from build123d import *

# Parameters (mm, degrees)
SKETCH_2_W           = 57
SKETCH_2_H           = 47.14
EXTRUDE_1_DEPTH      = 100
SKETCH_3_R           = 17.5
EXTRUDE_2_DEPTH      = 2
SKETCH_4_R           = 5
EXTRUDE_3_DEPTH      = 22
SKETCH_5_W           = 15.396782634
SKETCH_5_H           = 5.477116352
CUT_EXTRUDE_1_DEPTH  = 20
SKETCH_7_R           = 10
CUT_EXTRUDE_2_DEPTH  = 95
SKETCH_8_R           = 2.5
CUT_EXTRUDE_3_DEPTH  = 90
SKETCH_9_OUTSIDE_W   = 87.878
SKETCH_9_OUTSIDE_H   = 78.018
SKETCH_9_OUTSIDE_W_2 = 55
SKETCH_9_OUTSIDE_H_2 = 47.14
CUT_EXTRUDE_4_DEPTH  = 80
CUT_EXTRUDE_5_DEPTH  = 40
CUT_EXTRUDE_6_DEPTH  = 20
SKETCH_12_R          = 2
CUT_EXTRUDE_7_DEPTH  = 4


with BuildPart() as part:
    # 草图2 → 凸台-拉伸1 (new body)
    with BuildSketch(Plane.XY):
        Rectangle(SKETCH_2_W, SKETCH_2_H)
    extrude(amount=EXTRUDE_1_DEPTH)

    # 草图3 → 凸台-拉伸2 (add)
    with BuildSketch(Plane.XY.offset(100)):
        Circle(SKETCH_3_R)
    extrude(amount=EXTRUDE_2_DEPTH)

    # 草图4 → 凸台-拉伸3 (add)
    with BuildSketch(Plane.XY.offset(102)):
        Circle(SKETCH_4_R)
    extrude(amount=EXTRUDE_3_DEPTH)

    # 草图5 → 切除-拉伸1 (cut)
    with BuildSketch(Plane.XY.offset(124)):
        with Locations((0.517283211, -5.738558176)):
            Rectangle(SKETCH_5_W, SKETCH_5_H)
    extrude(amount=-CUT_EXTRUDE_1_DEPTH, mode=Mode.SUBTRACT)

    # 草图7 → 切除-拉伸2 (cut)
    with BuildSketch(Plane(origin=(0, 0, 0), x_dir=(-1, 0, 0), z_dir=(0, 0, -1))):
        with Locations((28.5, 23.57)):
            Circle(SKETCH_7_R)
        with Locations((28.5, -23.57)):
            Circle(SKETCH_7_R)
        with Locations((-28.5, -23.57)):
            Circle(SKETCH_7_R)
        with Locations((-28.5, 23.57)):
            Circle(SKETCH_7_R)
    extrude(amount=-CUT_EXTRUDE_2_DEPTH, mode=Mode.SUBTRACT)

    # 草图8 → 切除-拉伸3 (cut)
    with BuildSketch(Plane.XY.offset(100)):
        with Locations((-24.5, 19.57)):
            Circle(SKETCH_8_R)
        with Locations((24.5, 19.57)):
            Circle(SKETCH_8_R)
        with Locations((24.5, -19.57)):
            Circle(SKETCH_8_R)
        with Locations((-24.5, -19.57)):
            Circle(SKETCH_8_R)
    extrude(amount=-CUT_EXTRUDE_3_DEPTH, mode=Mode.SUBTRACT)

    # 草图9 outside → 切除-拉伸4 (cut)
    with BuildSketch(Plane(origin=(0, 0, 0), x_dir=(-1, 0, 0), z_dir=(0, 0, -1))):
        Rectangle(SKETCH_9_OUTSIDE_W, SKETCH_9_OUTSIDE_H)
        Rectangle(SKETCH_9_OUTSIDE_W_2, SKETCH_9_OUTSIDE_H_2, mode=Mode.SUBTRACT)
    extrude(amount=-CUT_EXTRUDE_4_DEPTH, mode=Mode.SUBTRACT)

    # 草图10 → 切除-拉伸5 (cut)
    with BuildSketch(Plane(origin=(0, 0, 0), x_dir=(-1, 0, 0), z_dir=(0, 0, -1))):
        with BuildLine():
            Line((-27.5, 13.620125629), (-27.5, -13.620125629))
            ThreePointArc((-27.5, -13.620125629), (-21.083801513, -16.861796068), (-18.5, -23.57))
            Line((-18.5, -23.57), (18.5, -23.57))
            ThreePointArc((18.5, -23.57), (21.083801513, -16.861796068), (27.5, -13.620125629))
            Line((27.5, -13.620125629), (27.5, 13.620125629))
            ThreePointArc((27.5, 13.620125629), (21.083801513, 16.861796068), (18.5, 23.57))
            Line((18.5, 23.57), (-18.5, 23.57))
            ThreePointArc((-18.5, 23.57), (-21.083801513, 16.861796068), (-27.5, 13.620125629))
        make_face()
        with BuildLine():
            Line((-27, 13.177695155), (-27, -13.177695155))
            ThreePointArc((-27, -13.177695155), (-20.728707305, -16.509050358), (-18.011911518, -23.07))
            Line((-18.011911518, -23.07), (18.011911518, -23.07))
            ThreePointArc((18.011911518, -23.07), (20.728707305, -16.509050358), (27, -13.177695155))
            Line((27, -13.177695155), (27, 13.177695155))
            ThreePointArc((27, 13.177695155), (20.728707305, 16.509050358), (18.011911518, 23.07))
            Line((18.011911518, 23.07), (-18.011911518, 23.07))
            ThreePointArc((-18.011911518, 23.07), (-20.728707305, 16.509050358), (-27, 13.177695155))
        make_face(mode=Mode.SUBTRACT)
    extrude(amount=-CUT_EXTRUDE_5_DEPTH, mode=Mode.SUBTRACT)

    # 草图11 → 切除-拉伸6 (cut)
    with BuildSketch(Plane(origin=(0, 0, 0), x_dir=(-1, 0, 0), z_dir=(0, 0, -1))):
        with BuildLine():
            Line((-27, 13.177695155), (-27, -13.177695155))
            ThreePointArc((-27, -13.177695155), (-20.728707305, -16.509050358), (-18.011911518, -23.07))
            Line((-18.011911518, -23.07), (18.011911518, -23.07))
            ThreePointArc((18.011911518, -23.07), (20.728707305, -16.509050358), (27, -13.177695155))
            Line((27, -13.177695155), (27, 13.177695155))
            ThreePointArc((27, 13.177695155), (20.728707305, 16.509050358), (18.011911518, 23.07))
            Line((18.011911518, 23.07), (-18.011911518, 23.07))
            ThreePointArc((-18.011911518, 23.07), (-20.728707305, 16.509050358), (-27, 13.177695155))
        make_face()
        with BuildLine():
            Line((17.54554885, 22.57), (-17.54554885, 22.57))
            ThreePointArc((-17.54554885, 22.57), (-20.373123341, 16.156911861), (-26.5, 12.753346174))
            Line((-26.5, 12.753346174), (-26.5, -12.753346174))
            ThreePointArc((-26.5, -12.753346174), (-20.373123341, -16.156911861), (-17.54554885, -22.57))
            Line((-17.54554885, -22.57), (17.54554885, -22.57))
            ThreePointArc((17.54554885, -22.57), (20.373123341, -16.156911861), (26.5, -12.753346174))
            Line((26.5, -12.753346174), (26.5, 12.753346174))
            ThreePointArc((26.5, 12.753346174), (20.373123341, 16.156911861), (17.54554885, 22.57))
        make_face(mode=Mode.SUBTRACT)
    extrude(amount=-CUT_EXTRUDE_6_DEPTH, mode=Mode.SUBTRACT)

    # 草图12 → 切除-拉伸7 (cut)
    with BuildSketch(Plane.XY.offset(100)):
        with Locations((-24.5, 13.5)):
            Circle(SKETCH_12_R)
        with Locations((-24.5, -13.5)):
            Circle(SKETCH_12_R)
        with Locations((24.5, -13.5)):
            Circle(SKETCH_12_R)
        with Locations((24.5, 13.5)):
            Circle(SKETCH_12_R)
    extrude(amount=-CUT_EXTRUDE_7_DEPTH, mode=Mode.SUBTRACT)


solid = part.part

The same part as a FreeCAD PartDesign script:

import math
import FreeCAD as App
import Part
import Sketcher

V = App.Vector


def add_polygon(sketch, points):
    """Adds a closed chain of lines whose ends are joined by coincident constraints."""
    first, n = sketch.GeometryCount, len(points)
    for a, b in zip(points, points[1:] + points[:1]):
        sketch.addGeometry(Part.LineSegment(App.Vector(*a, 0), App.Vector(*b, 0)), False)
    for i in range(n):
        sketch.addConstraint(Sketcher.Constraint("Coincident", first + i, 2, first + (i + 1) % n, 1))

doc = App.newDocument("Part")
body = doc.addObject("PartDesign::Body", "Body")

# Sketch on XY plane
sketch1 = body.newObject("Sketcher::SketchObject", "Sketch")
sketch1.AttachmentSupport = (doc.getObject("XY_Plane"), [""])
sketch1.MapMode = "FlatFace"
add_polygon(sketch1, [(-28.5, 23.57), (-28.5, -23.57), (28.5, -23.57), (28.5, 23.57)])  # lines 0-3
sketch1.addConstraint(Sketcher.Constraint("Vertical", 0))
sketch1.addConstraint(Sketcher.Constraint("Horizontal", 1))
sketch1.addConstraint(Sketcher.Constraint("Vertical", 2))
sketch1.addConstraint(Sketcher.Constraint("Horizontal", 3))
sketch1.addConstraint(Sketcher.Constraint("Symmetric", 0, 2, 2, 2, -1, 1))
sketch1.addConstraint(Sketcher.Constraint("DistanceX", 1, 1, 1, 2, 57.0))
sketch1.addConstraint(Sketcher.Constraint("DistanceY", 0, 2, 0, 1, 47.14))
pad1 = body.newObject("PartDesign::Pad", "Pad")
pad1.Profile = sketch1
pad1.Length = 100

# Sketch on XY plane
sketch2 = body.newObject("Sketcher::SketchObject", "Sketch001")
sketch2.AttachmentSupport = (doc.getObject("XY_Plane"), [""])
sketch2.MapMode = "FlatFace"
sketch2.AttachmentOffset = App.Placement(V(0, 0, 100), App.Rotation())
sketch2.addGeometry(Part.Circle(V(0, 0, 0), V(0, 0, 1), 17.5), False)
sketch2.addConstraint(Sketcher.Constraint("Coincident", 0, 3, -1, 1))
sketch2.addConstraint(Sketcher.Constraint("Diameter", 0, 35.0))
pad2 = body.newObject("PartDesign::Pad", "Pad001")
pad2.Profile = sketch2
pad2.Length = 2

# Sketch on XY plane
sketch3 = body.newObject("Sketcher::SketchObject", "Sketch002")
sketch3.AttachmentSupport = (doc.getObject("XY_Plane"), [""])
sketch3.MapMode = "FlatFace"
sketch3.AttachmentOffset = App.Placement(V(0, 0, 102), App.Rotation())
sketch3.addGeometry(Part.Circle(V(0, 0, 0), V(0, 0, 1), 5), False)
sketch3.addConstraint(Sketcher.Constraint("Coincident", 0, 3, -1, 1))
sketch3.addConstraint(Sketcher.Constraint("Diameter", 0, 10.0))
pad3 = body.newObject("PartDesign::Pad", "Pad002")
pad3.Profile = sketch3
pad3.Length = 22

# Sketch on XY plane
sketch4 = body.newObject("Sketcher::SketchObject", "Sketch003")
sketch4.AttachmentSupport = (doc.getObject("XY_Plane"), [""])
sketch4.MapMode = "FlatFace"
sketch4.AttachmentOffset = App.Placement(V(0, 0, 124), App.Rotation())
add_polygon(sketch4, [(-7.181108, -3), (-7.181108, -8.477116), (8.215675, -8.477116), (8.215675, -3)])  # lines 0-3
sketch4.addConstraint(Sketcher.Constraint("Vertical", 0))
sketch4.addConstraint(Sketcher.Constraint("Horizontal", 1))
sketch4.addConstraint(Sketcher.Constraint("Vertical", 2))
sketch4.addConstraint(Sketcher.Constraint("Horizontal", 3))
sketch4.addConstraint(Sketcher.Constraint("DistanceY", 2, 2, -1, 1, 3.0))
sketch4.addConstraint(Sketcher.Constraint("DistanceX", 1, 1, 1, 2, 15.396783))
sketch4.addConstraint(Sketcher.Constraint("DistanceY", 0, 2, 0, 1, 5.477116))
sketch4.addConstraint(Sketcher.Constraint("DistanceX", 0, 2, -1, 1, 7.181108))
pocket1 = body.newObject("PartDesign::Pocket", "Pocket")
pocket1.Profile = sketch4
pocket1.Length = 20

# Sketch on XY plane
sketch5 = body.newObject("Sketcher::SketchObject", "Sketch004")
sketch5.AttachmentSupport = (doc.getObject("XY_Plane"), [""])
sketch5.MapMode = "FlatFace"
sketch5.addGeometry(Part.Circle(V(-28.5, 23.57, 0), V(0, 0, 1), 10), False)
sketch5.addGeometry(Part.Circle(V(-28.5, -23.57, 0), V(0, 0, 1), 10), False)
sketch5.addGeometry(Part.Circle(V(28.5, -23.57, 0), V(0, 0, 1), 10), False)
sketch5.addGeometry(Part.Circle(V(28.5, 23.57, 0), V(0, 0, 1), 10), False)
sketch5.addConstraint(Sketcher.Constraint("Equal", 0, 1))
sketch5.addConstraint(Sketcher.Constraint("Equal", 1, 2))
sketch5.addConstraint(Sketcher.Constraint("Equal", 2, 3))
sketch5.addConstraint(Sketcher.Constraint("Symmetric", 0, 3, 2, 3, -1, 1))
sketch5.addConstraint(Sketcher.Constraint("Symmetric", 1, 3, 3, 3, -1, 1))
sketch5.addConstraint(Sketcher.Constraint("Symmetric", 1, 3, 2, 3, -2))
sketch5.addConstraint(Sketcher.Constraint("Diameter", 0, 20.0))
sketch5.addConstraint(Sketcher.Constraint("DistanceX", 1, 3, 2, 3, 57.0))
sketch5.addConstraint(Sketcher.Constraint("DistanceY", -1, 1, 0, 3, 23.57))
pocket2 = body.newObject("PartDesign::Pocket", "Pocket001")
pocket2.Profile = sketch5
pocket2.Length = 95
pocket2.Reversed = True

# Sketch on XY plane
sketch6 = body.newObject("Sketcher::SketchObject", "Sketch005")
sketch6.AttachmentSupport = (doc.getObject("XY_Plane"), [""])
sketch6.MapMode = "FlatFace"
sketch6.AttachmentOffset = App.Placement(V(0, 0, 100), App.Rotation())
sketch6.addGeometry(Part.Circle(V(-24.5, 19.57, 0), V(0, 0, 1), 2.5), False)
sketch6.addGeometry(Part.Circle(V(24.5, 19.57, 0), V(0, 0, 1), 2.5), False)
sketch6.addGeometry(Part.Circle(V(24.5, -19.57, 0), V(0, 0, 1), 2.5), False)
sketch6.addGeometry(Part.Circle(V(-24.5, -19.57, 0), V(0, 0, 1), 2.5), False)
sketch6.addConstraint(Sketcher.Constraint("Equal", 0, 1))
sketch6.addConstraint(Sketcher.Constraint("Equal", 1, 2))
sketch6.addConstraint(Sketcher.Constraint("Equal", 2, 3))
sketch6.addConstraint(Sketcher.Constraint("Symmetric", 0, 3, 2, 3, -1, 1))
sketch6.addConstraint(Sketcher.Constraint("Symmetric", 1, 3, 3, 3, -1, 1))
sketch6.addConstraint(Sketcher.Constraint("Symmetric", 0, 3, 1, 3, -2))
sketch6.addConstraint(Sketcher.Constraint("Diameter", 0, 5.0))
sketch6.addConstraint(Sketcher.Constraint("DistanceX", 0, 3, 1, 3, 49.0))
sketch6.addConstraint(Sketcher.Constraint("DistanceY", -1, 1, 0, 3, 19.57))
pocket3 = body.newObject("PartDesign::Pocket", "Pocket002")
pocket3.Profile = sketch6
pocket3.Length = 90

# Sketch on XY plane
sketch7 = body.newObject("Sketcher::SketchObject", "Sketch006")
sketch7.AttachmentSupport = (doc.getObject("XY_Plane"), [""])
sketch7.MapMode = "FlatFace"
add_polygon(sketch7, [(43.939, 39.009), (43.939, -39.009), (-43.939, -39.009), (-43.939, 39.009)])  # lines 0-3
add_polygon(sketch7, [(-27.5, -23.57), (27.5, -23.57), (27.5, 23.57), (-27.5, 23.57)])  # lines 4-7
sketch7.addConstraint(Sketcher.Constraint("Vertical", 0))
sketch7.addConstraint(Sketcher.Constraint("Horizontal", 1))
sketch7.addConstraint(Sketcher.Constraint("Vertical", 2))
sketch7.addConstraint(Sketcher.Constraint("Horizontal", 3))
sketch7.addConstraint(Sketcher.Constraint("Horizontal", 4))
sketch7.addConstraint(Sketcher.Constraint("Vertical", 5))
sketch7.addConstraint(Sketcher.Constraint("Horizontal", 6))
sketch7.addConstraint(Sketcher.Constraint("Vertical", 7))
sketch7.addConstraint(Sketcher.Constraint("Symmetric", 0, 2, 2, 2, -1, 1))
sketch7.addConstraint(Sketcher.Constraint("Symmetric", 4, 2, 6, 2, -1, 1))
sketch7.addConstraint(Sketcher.Constraint("DistanceX", 4, 1, 4, 2, 55.0))
sketch7.addConstraint(Sketcher.Constraint("DistanceY", 5, 1, 5, 2, 47.14))
sketch7.addConstraint(Sketcher.Constraint("DistanceX", 1, 2, 1, 1, 87.878))
sketch7.addConstraint(Sketcher.Constraint("DistanceY", 0, 2, 0, 1, 78.018))
pocket4 = body.newObject("PartDesign::Pocket", "Pocket003")
pocket4.Profile = sketch7
pocket4.Length = 80
pocket4.Reversed = True

# Sketch on XY plane
sketch8 = body.newObject("Sketcher::SketchObject", "Sketch007")
sketch8.AttachmentSupport = (doc.getObject("XY_Plane"), [""])
sketch8.MapMode = "FlatFace"
sketch8.addGeometry(Part.LineSegment(V(27.5, 13.620126, 0), V(27.5, -13.620126, 0)), False)
sketch8.addGeometry(Part.ArcOfCircle(Part.Circle(V(28.5, -23.57, 0), V(0, 0, 1), 10), math.radians(95.73917), math.radians(180)), False)
sketch8.addGeometry(Part.LineSegment(V(18.5, -23.57, 0), V(-18.5, -23.57, 0)), False)
sketch8.addGeometry(Part.ArcOfCircle(Part.Circle(V(-28.5, -23.57, 0), V(0, 0, 1), 10), math.radians(0), math.radians(84.26083)), False)
sketch8.addGeometry(Part.LineSegment(V(-27.5, -13.620126, 0), V(-27.5, 13.620126, 0)), False)
sketch8.addGeometry(Part.ArcOfCircle(Part.Circle(V(-28.5, 23.57, 0), V(0, 0, 1), 10), math.radians(-84.26083), math.radians(0)), False)
sketch8.addGeometry(Part.LineSegment(V(-18.5, 23.57, 0), V(18.5, 23.57, 0)), False)
sketch8.addGeometry(Part.ArcOfCircle(Part.Circle(V(28.5, 23.57, 0), V(0, 0, 1), 10), math.radians(-180), math.radians(-95.73917)), False)
sketch8.addGeometry(Part.LineSegment(V(27, -13.177695, 0), V(27, 13.177695, 0)), False)
sketch8.addGeometry(Part.ArcOfCircle(Part.Circle(V(28.5, 23.57, 0), V(0, 0, 1), 10.5), math.radians(-177.270597), math.radians(-98.213211)), False)
sketch8.addGeometry(Part.LineSegment(V(18.011912, 23.07, 0), V(-18.011912, 23.07, 0)), False)
sketch8.addGeometry(Part.ArcOfCircle(Part.Circle(V(-28.5, 23.57, 0), V(0, 0, 1), 10.5), math.radians(-81.786789), math.radians(-2.729403)), False)
sketch8.addGeometry(Part.LineSegment(V(-27, 13.177695, 0), V(-27, -13.177695, 0)), False)
sketch8.addGeometry(Part.ArcOfCircle(Part.Circle(V(-28.5, -23.57, 0), V(0, 0, 1), 10.5), math.radians(2.729403), math.radians(81.786789)), False)
sketch8.addGeometry(Part.LineSegment(V(-18.011912, -23.07, 0), V(18.011912, -23.07, 0)), False)
sketch8.addGeometry(Part.ArcOfCircle(Part.Circle(V(28.5, -23.57, 0), V(0, 0, 1), 10.5), math.radians(98.213211), math.radians(177.270597)), False)
sketch8.addConstraint(Sketcher.Constraint("Coincident", 0, 2, 1, 1))
sketch8.addConstraint(Sketcher.Constraint("Coincident", 1, 2, 2, 1))
sketch8.addConstraint(Sketcher.Constraint("Coincident", 2, 2, 3, 1))
sketch8.addConstraint(Sketcher.Constraint("Coincident", 3, 2, 4, 1))
sketch8.addConstraint(Sketcher.Constraint("Coincident", 4, 2, 5, 1))
sketch8.addConstraint(Sketcher.Constraint("Coincident", 5, 2, 6, 1))
sketch8.addConstraint(Sketcher.Constraint("Coincident", 6, 2, 7, 1))
sketch8.addConstraint(Sketcher.Constraint("Coincident", 7, 2, 0, 1))
sketch8.addConstraint(Sketcher.Constraint("Coincident", 8, 2, 9, 2))
sketch8.addConstraint(Sketcher.Constraint("Coincident", 9, 1, 10, 1))
sketch8.addConstraint(Sketcher.Constraint("Coincident", 10, 2, 11, 2))
sketch8.addConstraint(Sketcher.Constraint("Coincident", 11, 1, 12, 1))
sketch8.addConstraint(Sketcher.Constraint("Coincident", 12, 2, 13, 2))
sketch8.addConstraint(Sketcher.Constraint("Coincident", 13, 1, 14, 1))
sketch8.addConstraint(Sketcher.Constraint("Coincident", 14, 2, 15, 2))
sketch8.addConstraint(Sketcher.Constraint("Coincident", 15, 1, 8, 1))
sketch8.addConstraint(Sketcher.Constraint("Vertical", 0))
sketch8.addConstraint(Sketcher.Constraint("Horizontal", 2))
sketch8.addConstraint(Sketcher.Constraint("Vertical", 4))
sketch8.addConstraint(Sketcher.Constraint("Horizontal", 6))
sketch8.addConstraint(Sketcher.Constraint("Vertical", 8))
sketch8.addConstraint(Sketcher.Constraint("Horizontal", 10))
sketch8.addConstraint(Sketcher.Constraint("Vertical", 12))
sketch8.addConstraint(Sketcher.Constraint("Horizontal", 14))
sketch8.addConstraint(Sketcher.Constraint("Coincident", 9, 3, 7, 3))
sketch8.addConstraint(Sketcher.Constraint("Coincident", 11, 3, 5, 3))
sketch8.addConstraint(Sketcher.Constraint("Coincident", 13, 3, 3, 3))
sketch8.addConstraint(Sketcher.Constraint("Coincident", 15, 3, 1, 3))
sketch8.addConstraint(Sketcher.Constraint("Equal", 1, 3))
sketch8.addConstraint(Sketcher.Constraint("Equal", 3, 5))
sketch8.addConstraint(Sketcher.Constraint("Equal", 5, 7))
sketch8.addConstraint(Sketcher.Constraint("Equal", 9, 11))
sketch8.addConstraint(Sketcher.Constraint("Equal", 11, 13))
sketch8.addConstraint(Sketcher.Constraint("Equal", 13, 15))
sketch8.addConstraint(Sketcher.Constraint("Symmetric", 1, 3, 5, 3, -1, 1))
sketch8.addConstraint(Sketcher.Constraint("Symmetric", 3, 3, 7, 3, -1, 1))
sketch8.addConstraint(Sketcher.Constraint("Symmetric", 1, 3, 3, 3, -2))
sketch8.addConstraint(Sketcher.Constraint("Horizontal", 15, 3, 1, 2))
sketch8.addConstraint(Sketcher.Constraint("Horizontal", 0, 2, 3, 2))
sketch8.addConstraint(Sketcher.Constraint("Horizontal", 11, 3, 5, 2))
sketch8.addConstraint(Sketcher.Constraint("Horizontal", 8, 2, 11, 1))
sketch8.addConstraint(Sketcher.Constraint("Vertical", 10, 2, 13, 1))
sketch8.addConstraint(Sketcher.Constraint("Radius", 1, 10.0))
sketch8.addConstraint(Sketcher.Constraint("Radius", 9, 10.5))
sketch8.addConstraint(Sketcher.Constraint("DistanceX", 2, 2, 2, 1, 37.0))
sketch8.addConstraint(Sketcher.Constraint("DistanceX", -1, 1, 8, 2, 27.0))
sketch8.addConstraint(Sketcher.Constraint("DistanceX", 0, 2, 15, 3, 1.0))
sketch8.addConstraint(Sketcher.Constraint("DistanceY", 9, 1, 6, 2, 0.5))
sketch8.addConstraint(Sketcher.Constraint("DistanceY", 1, 3, -1, 1, 23.57))
pocket5 = body.newObject("PartDesign::Pocket", "Pocket004")
pocket5.Profile = sketch8
pocket5.Length = 40
pocket5.Reversed = True

# Sketch on XY plane
sketch9 = body.newObject("Sketcher::SketchObject", "Sketch008")
sketch9.AttachmentSupport = (doc.getObject("XY_Plane"), [""])
sketch9.MapMode = "FlatFace"
sketch9.addGeometry(Part.LineSegment(V(27, 13.177695, 0), V(27, -13.177695, 0)), False)
sketch9.addGeometry(Part.ArcOfCircle(Part.Circle(V(28.5, -23.57, 0), V(0, 0, 1), 10.5), math.radians(98.213211), math.radians(177.270597)), False)
sketch9.addGeometry(Part.LineSegment(V(18.011912, -23.07, 0), V(-18.011912, -23.07, 0)), False)
sketch9.addGeometry(Part.ArcOfCircle(Part.Circle(V(-28.5, -23.57, 0), V(0, 0, 1), 10.5), math.radians(2.729403), math.radians(81.786789)), False)
sketch9.addGeometry(Part.LineSegment(V(-27, -13.177695, 0), V(-27, 13.177695, 0)), False)
sketch9.addGeometry(Part.ArcOfCircle(Part.Circle(V(-28.5, 23.57, 0), V(0, 0, 1), 10.5), math.radians(-81.786789), math.radians(-2.729403)), False)
sketch9.addGeometry(Part.LineSegment(V(-18.011912, 23.07, 0), V(18.011912, 23.07, 0)), False)
sketch9.addGeometry(Part.ArcOfCircle(Part.Circle(V(28.5, 23.57, 0), V(0, 0, 1), 10.5), math.radians(-177.270597), math.radians(-98.213211)), False)
sketch9.addGeometry(Part.LineSegment(V(17.545549, 22.57, 0), V(-17.545549, 22.57, 0)), False)
sketch9.addGeometry(Part.ArcOfCircle(Part.Circle(V(-28.5, 23.57, 0), V(0, 0, 1), 11), math.radians(-79.524318), math.radians(-5.215909)), False)
sketch9.addGeometry(Part.LineSegment(V(-26.5, 12.753346, 0), V(-26.5, -12.753346, 0)), False)
sketch9.addGeometry(Part.ArcOfCircle(Part.Circle(V(-28.5, -23.57, 0), V(0, 0, 1), 11), math.radians(5.215909), math.radians(79.524318)), False)
sketch9.addGeometry(Part.LineSegment(V(-17.545549, -22.57, 0), V(17.545549, -22.57, 0)), False)
sketch9.addGeometry(Part.ArcOfCircle(Part.Circle(V(28.5, -23.57, 0), V(0, 0, 1), 11), math.radians(100.475682), math.radians(174.784091)), False)
sketch9.addGeometry(Part.LineSegment(V(26.5, -12.753346, 0), V(26.5, 12.753346, 0)), False)
sketch9.addGeometry(Part.ArcOfCircle(Part.Circle(V(28.5, 23.57, 0), V(0, 0, 1), 11), math.radians(-174.784091), math.radians(-100.475682)), False)
sketch9.addConstraint(Sketcher.Constraint("Coincident", 0, 2, 1, 1))
sketch9.addConstraint(Sketcher.Constraint("Coincident", 1, 2, 2, 1))
sketch9.addConstraint(Sketcher.Constraint("Coincident", 2, 2, 3, 1))
sketch9.addConstraint(Sketcher.Constraint("Coincident", 3, 2, 4, 1))
sketch9.addConstraint(Sketcher.Constraint("Coincident", 4, 2, 5, 1))
sketch9.addConstraint(Sketcher.Constraint("Coincident", 5, 2, 6, 1))
sketch9.addConstraint(Sketcher.Constraint("Coincident", 6, 2, 7, 1))
sketch9.addConstraint(Sketcher.Constraint("Coincident", 7, 2, 0, 1))
sketch9.addConstraint(Sketcher.Constraint("Coincident", 8, 2, 9, 2))
sketch9.addConstraint(Sketcher.Constraint("Coincident", 9, 1, 10, 1))
sketch9.addConstraint(Sketcher.Constraint("Coincident", 10, 2, 11, 2))
sketch9.addConstraint(Sketcher.Constraint("Coincident", 11, 1, 12, 1))
sketch9.addConstraint(Sketcher.Constraint("Coincident", 12, 2, 13, 2))
sketch9.addConstraint(Sketcher.Constraint("Coincident", 13, 1, 14, 1))
sketch9.addConstraint(Sketcher.Constraint("Coincident", 14, 2, 15, 2))
sketch9.addConstraint(Sketcher.Constraint("Coincident", 15, 1, 8, 1))
sketch9.addConstraint(Sketcher.Constraint("Vertical", 0))
sketch9.addConstraint(Sketcher.Constraint("Horizontal", 2))
sketch9.addConstraint(Sketcher.Constraint("Vertical", 4))
sketch9.addConstraint(Sketcher.Constraint("Horizontal", 6))
sketch9.addConstraint(Sketcher.Constraint("Horizontal", 8))
sketch9.addConstraint(Sketcher.Constraint("Vertical", 10))
sketch9.addConstraint(Sketcher.Constraint("Horizontal", 12))
sketch9.addConstraint(Sketcher.Constraint("Vertical", 14))
sketch9.addConstraint(Sketcher.Constraint("Coincident", 9, 3, 5, 3))
sketch9.addConstraint(Sketcher.Constraint("Coincident", 11, 3, 3, 3))
sketch9.addConstraint(Sketcher.Constraint("Coincident", 13, 3, 1, 3))
sketch9.addConstraint(Sketcher.Constraint("Coincident", 15, 3, 7, 3))
sketch9.addConstraint(Sketcher.Constraint("Equal", 1, 3))
sketch9.addConstraint(Sketcher.Constraint("Equal", 3, 5))
sketch9.addConstraint(Sketcher.Constraint("Equal", 5, 7))
sketch9.addConstraint(Sketcher.Constraint("Equal", 9, 11))
sketch9.addConstraint(Sketcher.Constraint("Equal", 11, 13))
sketch9.addConstraint(Sketcher.Constraint("Equal", 13, 15))
sketch9.addConstraint(Sketcher.Constraint("Symmetric", 1, 3, 5, 3, -1, 1))
sketch9.addConstraint(Sketcher.Constraint("Symmetric", 3, 3, 7, 3, -1, 1))
sketch9.addConstraint(Sketcher.Constraint("Symmetric", 1, 3, 3, 3, -2))
sketch9.addConstraint(Sketcher.Constraint("Horizontal", 0, 2, 3, 2))
sketch9.addConstraint(Sketcher.Constraint("Horizontal", 10, 2, 13, 1))
sketch9.addConstraint(Sketcher.Constraint("Vertical", 2, 2, 5, 2))
sketch9.addConstraint(Sketcher.Constraint("Vertical", 8, 2, 11, 1))
sketch9.addConstraint(Sketcher.Constraint("Radius", 9, 11.0))
sketch9.addConstraint(Sketcher.Constraint("Radius", 1, 10.5))
sketch9.addConstraint(Sketcher.Constraint("DistanceX", -1, 1, 0, 2, 27.0))
sketch9.addConstraint(Sketcher.Constraint("DistanceX", 3, 3, 1, 3, 57.0))
sketch9.addConstraint(Sketcher.Constraint("DistanceY", 8, 2, 5, 3, 1.0))
sketch9.addConstraint(Sketcher.Constraint("DistanceX", 5, 3, 9, 1, 2.0))
sketch9.addConstraint(Sketcher.Constraint("DistanceY", 1, 3, 1, 2, 0.5))
sketch9.addConstraint(Sketcher.Constraint("DistanceY", 1, 3, -1, 1, 23.57))
pocket6 = body.newObject("PartDesign::Pocket", "Pocket005")
pocket6.Profile = sketch9
pocket6.Length = 20
pocket6.Reversed = True

# Sketch on XY plane
sketch10 = body.newObject("Sketcher::SketchObject", "Sketch009")
sketch10.AttachmentSupport = (doc.getObject("XY_Plane"), [""])
sketch10.MapMode = "FlatFace"
sketch10.AttachmentOffset = App.Placement(V(0, 0, 100), App.Rotation())
sketch10.addGeometry(Part.Circle(V(-24.5, 13.5, 0), V(0, 0, 1), 2), False)
sketch10.addGeometry(Part.Circle(V(-24.5, -13.5, 0), V(0, 0, 1), 2), False)
sketch10.addGeometry(Part.Circle(V(24.5, -13.5, 0), V(0, 0, 1), 2), False)
sketch10.addGeometry(Part.Circle(V(24.5, 13.5, 0), V(0, 0, 1), 2), False)
sketch10.addConstraint(Sketcher.Constraint("Equal", 0, 1))
sketch10.addConstraint(Sketcher.Constraint("Equal", 1, 2))
sketch10.addConstraint(Sketcher.Constraint("Equal", 2, 3))
sketch10.addConstraint(Sketcher.Constraint("Symmetric", 0, 3, 2, 3, -1, 1))
sketch10.addConstraint(Sketcher.Constraint("Symmetric", 1, 3, 3, 3, -1, 1))
sketch10.addConstraint(Sketcher.Constraint("Symmetric", 1, 3, 2, 3, -2))
sketch10.addConstraint(Sketcher.Constraint("Diameter", 0, 4.0))
sketch10.addConstraint(Sketcher.Constraint("DistanceY", 1, 3, 0, 3, 27.0))
sketch10.addConstraint(Sketcher.Constraint("DistanceX", 1, 3, 2, 3, 49.0))
pocket7 = body.newObject("PartDesign::Pocket", "Pocket006")
pocket7.Profile = sketch10
pocket7.Length = 4

doc.recompute()
